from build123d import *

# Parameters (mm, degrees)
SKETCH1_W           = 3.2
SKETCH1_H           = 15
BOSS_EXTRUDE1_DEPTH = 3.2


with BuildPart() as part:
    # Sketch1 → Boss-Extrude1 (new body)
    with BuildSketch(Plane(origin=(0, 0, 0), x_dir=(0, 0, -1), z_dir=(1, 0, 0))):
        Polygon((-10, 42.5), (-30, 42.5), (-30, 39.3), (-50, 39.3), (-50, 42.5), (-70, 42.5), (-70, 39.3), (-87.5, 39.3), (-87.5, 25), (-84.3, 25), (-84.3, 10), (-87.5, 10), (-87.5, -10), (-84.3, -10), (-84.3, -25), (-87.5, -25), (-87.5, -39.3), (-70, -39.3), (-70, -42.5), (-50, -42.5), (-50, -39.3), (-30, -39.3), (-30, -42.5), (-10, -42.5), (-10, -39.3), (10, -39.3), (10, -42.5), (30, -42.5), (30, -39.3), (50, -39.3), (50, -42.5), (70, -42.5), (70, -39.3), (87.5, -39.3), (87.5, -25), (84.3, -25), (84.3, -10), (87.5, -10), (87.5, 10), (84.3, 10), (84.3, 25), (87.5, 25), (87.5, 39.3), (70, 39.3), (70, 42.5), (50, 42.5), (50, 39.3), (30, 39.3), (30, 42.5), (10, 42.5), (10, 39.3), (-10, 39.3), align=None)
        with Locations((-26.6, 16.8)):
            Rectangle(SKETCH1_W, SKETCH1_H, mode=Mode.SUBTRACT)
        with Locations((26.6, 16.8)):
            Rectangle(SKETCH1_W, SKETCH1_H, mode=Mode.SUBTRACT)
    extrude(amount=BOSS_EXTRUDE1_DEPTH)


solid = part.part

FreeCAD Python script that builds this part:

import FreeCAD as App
import Part
import Sketcher
from FreeCAD import Vector
Q = App.Units.Quantity


def add_polygon(sketch, points):
    """Adds a closed chain of lines whose ends are joined by coincident constraints."""
    first, n = sketch.GeometryCount, len(points)
    for a, b in zip(points, points[1:] + points[:1]):
        sketch.addGeometry(Part.LineSegment(App.Vector(*a, 0), App.Vector(*b, 0)), False)
    for i in range(n):
        sketch.addConstraint(Sketcher.Constraint("Coincident", first + i, 2, first + (i + 1) % n, 1))

doc = App.newDocument("Part")
body = doc.addObject("PartDesign::Body", "Body")

sketch1 = body.newObject("Sketcher::SketchObject", "Sketch")
sketch1.AttachmentSupport = (doc.getObject("YZ_Plane"), [""])
sketch1.MapMode = "FlatFace"
add_polygon(sketch1, [(42.5, 10), (42.5, 30), (39.3, 30), (39.3, 50), (42.5, 50), (42.5, 70), (39.3, 70), (39.3, 87.5), (25, 87.5), (25, 84.3), (10, 84.3), (10, 87.5), (-10, 87.5), (-10, 84.3), (-25, 84.3), (-25, 87.5), (-39.3, 87.5), (-39.3, 70), (-42.5, 70), (-42.5, 50), (-39.3, 50), (-39.3, 30), (-42.5, 30), (-42.5, 10), (-39.3, 10), (-39.3, -10), (-42.5, -10), (-42.5, -30), (-39.3, -30), (-39.3, -50), (-42.5, -50), (-42.5, -70), (-39.3, -70), (-39.3, -87.5), (-25, -87.5), (-25, -84.3), (-10, -84.3), (-10, -87.5), (10, -87.5), (10, -84.3), (25, -84.3), (25, -87.5), (39.3, -87.5), (39.3, -70), (42.5, -70), (42.5, -50), (39.3, -50), (39.3, -30), (42.5, -30), (42.5, -10), (39.3, -10), (39.3, 10)])
add_polygon(sketch1, [(9.3, 25), (9.3, 28.2), (24.3, 28.2), (24.3, 25)])
add_polygon(sketch1, [(9.3, -28.2), (9.3, -25), (24.3, -25), (24.3, -28.2)])
sketch1.addConstraint([
    Sketcher.Constraint("Vertical", 0),
    Sketcher.Constraint("Horizontal", 1),
    Sketcher.Constraint("Vertical", 2),
    Sketcher.Constraint("Horizontal", 3),
    Sketcher.Constraint("Vertical", 4),
    Sketcher.Constraint("Horizontal", 5),
    Sketcher.Constraint("Vertical", 6),
    Sketcher.Constraint("Horizontal", 7),
    Sketcher.Constraint("Vertical", 8),
    Sketcher.Constraint("Horizontal", 9),
    Sketcher.Constraint("Vertical", 10),
    Sketcher.Constraint("Horizontal", 11),
    Sketcher.Constraint("Vertical", 12),
    Sketcher.Constraint("Horizontal", 13),
    Sketcher.Constraint("Vertical", 14),
    Sketcher.Constraint("Horizontal", 15),
    Sketcher.Constraint("Vertical", 16),
    Sketcher.Constraint("Horizontal", 17),
    Sketcher.Constraint("Vertical", 18),
    Sketcher.Constraint("Horizontal", 19),
    Sketcher.Constraint("Vertical", 20),
    Sketcher.Constraint("Horizontal", 21),
    Sketcher.Constraint("Vertical", 22),
    Sketcher.Constraint("Horizontal", 23),
    Sketcher.Constraint("Vertical", 24),
    Sketcher.Constraint("Horizontal", 25),
    Sketcher.Constraint("Vertical", 26),
    Sketcher.Constraint("Horizontal", 27),
    Sketcher.Constraint("Vertical", 28),
    Sketcher.Constraint("Horizontal", 29),
    Sketcher.Constraint("Vertical", 30),
    Sketcher.Constraint("Horizontal", 31),
    Sketcher.Constraint("Vertical", 32),
    Sketcher.Constraint("Horizontal", 33),
    Sketcher.Constraint("Vertical", 34),
    Sketcher.Constraint("Horizontal", 35),
    Sketcher.Constraint("Vertical", 36),
    Sketcher.Constraint("Horizontal", 37),
    Sketcher.Constraint("Vertical", 38),
    Sketcher.Constraint("Horizontal", 39),
    Sketcher.Constraint("Vertical", 40),
    Sketcher.Constraint("Horizontal", 41),
    Sketcher.Constraint("Vertical", 42),
    Sketcher.Constraint("Horizontal", 43),
    Sketcher.Constraint("Vertical", 44),
    Sketcher.Constraint("Horizontal", 45),
    Sketcher.Constraint("Vertical", 46),
    Sketcher.Constraint("Horizontal", 47),
    Sketcher.Constraint("Vertical", 48),
    Sketcher.Constraint("Horizontal", 49),
    Sketcher.Constraint("Vertical", 50),
    Sketcher.Constraint("Horizontal", 51),
    Sketcher.Constraint("Vertical", 52),
    Sketcher.Constraint("Horizontal", 53),
    Sketcher.Constraint("Vertical", 54),
    Sketcher.Constraint("Horizontal", 55),
    Sketcher.Constraint("Vertical", 56),
    Sketcher.Constraint("Horizontal", 57),
    Sketcher.Constraint("Vertical", 58),
    Sketcher.Constraint("Horizontal", 59),
    Sketcher.Constraint("Symmetric", 0, 2, 26, 2, -1, 1),
    Sketcher.Constraint("Symmetric", 2, 2, 28, 2, -1, 1),
    Sketcher.Constraint("Symmetric", 4, 2, 30, 2, -1, 1),
    Sketcher.Constraint("Symmetric", 6, 2, 32, 2, -1, 1),
    Sketcher.Constraint("Symmetric", 8, 2, 34, 2, -1, 1),
    Sketcher.Constraint("Symmetric", 10, 2, 36, 2, -1, 1),
    Sketcher.Constraint("Symmetric", 12, 2, 38, 2, -1, 1),
    Sketcher.Constraint("Symmetric", 14, 2, 40, 2, -1, 1),
    Sketcher.Constraint("Symmetric", 16, 2, 42, 2, -1, 1),
    Sketcher.Constraint("Symmetric", 18, 2, 44, 2, -1, 1),
    Sketcher.Constraint("Symmetric", 20, 2, 46, 2, -1, 1),
    Sketcher.Constraint("Symmetric", 22, 2, 48, 2, -1, 1),
    Sketcher.Constraint("Symmetric", 24, 2, 50, 2, -1, 1),
    Sketcher.Constraint("Symmetric", 9, 2, 12, 2, -2),
    Sketcher.Constraint("Symmetric", 7, 2, 14, 2, -2),
    Sketcher.Constraint("Symmetric", 5, 2, 16, 2, -2),
    Sketcher.Constraint("Symmetric", 3, 2, 18, 2, -2),
    Sketcher.Constraint("Symmetric", 1, 2, 20, 2, -2),
    Sketcher.Constraint("Symmetric", 25, 2, 48, 2, -2),
    Sketcher.Constraint("Symmetric", 55, 2, 56, 2, -1),
    Sketcher.Constraint("Symmetric", 53, 2, 58, 2, -1),
    Sketcher.Constraint("Horizontal", 7, 2, 10, 2),
    Sketcher.Constraint("Vertical", 0, 2, 3, 2),
    Sketcher.Constraint("Vertical", 2, 2, 5, 2),
    Sketcher.Constraint("Vertical", 20, 2, 23, 2),
    Sketcher.Constraint("Equal", 39, 53),
    Sketcher.Constraint("Equal", 37, 0),
    Sketcher.Constraint("Equal", 0, 2),
    Sketcher.Constraint("Equal", 2, 4),
    Sketcher.Constraint("Equal", 51, 8),
    Sketcher.Constraint("Equal", 22, 24),
    Sketcher.Constraint("Equal", 40, 52),
    Sketcher.Constraint("DistanceX", 9, 2, 9, 1, Q("15 mm")),
    Sketcher.Constraint("DistanceX", 11, 2, 11, 1, Q("20 mm")),
    Sketcher.Constraint("DistanceX", 1, 2, 1, 1, Q("3.2 mm")),
    Sketcher.Constraint("DistanceX", 7, 2, 7, 1, Q("14.3 mm")),
    Sketcher.Constraint("DistanceY", 6, 1, 6, 2, Q("17.5 mm")),
    Sketcher.Constraint("DistanceY", -1, 1, 54, 2, Q("25 mm")),
    Sketcher.Constraint("DistanceX", 52, 2, 1, 2, Q("30 mm")),
])
pad1 = body.newObject("PartDesign::Pad", "Pad")
pad1.Profile = sketch1
pad1.Length = 3.2

doc.recompute()
